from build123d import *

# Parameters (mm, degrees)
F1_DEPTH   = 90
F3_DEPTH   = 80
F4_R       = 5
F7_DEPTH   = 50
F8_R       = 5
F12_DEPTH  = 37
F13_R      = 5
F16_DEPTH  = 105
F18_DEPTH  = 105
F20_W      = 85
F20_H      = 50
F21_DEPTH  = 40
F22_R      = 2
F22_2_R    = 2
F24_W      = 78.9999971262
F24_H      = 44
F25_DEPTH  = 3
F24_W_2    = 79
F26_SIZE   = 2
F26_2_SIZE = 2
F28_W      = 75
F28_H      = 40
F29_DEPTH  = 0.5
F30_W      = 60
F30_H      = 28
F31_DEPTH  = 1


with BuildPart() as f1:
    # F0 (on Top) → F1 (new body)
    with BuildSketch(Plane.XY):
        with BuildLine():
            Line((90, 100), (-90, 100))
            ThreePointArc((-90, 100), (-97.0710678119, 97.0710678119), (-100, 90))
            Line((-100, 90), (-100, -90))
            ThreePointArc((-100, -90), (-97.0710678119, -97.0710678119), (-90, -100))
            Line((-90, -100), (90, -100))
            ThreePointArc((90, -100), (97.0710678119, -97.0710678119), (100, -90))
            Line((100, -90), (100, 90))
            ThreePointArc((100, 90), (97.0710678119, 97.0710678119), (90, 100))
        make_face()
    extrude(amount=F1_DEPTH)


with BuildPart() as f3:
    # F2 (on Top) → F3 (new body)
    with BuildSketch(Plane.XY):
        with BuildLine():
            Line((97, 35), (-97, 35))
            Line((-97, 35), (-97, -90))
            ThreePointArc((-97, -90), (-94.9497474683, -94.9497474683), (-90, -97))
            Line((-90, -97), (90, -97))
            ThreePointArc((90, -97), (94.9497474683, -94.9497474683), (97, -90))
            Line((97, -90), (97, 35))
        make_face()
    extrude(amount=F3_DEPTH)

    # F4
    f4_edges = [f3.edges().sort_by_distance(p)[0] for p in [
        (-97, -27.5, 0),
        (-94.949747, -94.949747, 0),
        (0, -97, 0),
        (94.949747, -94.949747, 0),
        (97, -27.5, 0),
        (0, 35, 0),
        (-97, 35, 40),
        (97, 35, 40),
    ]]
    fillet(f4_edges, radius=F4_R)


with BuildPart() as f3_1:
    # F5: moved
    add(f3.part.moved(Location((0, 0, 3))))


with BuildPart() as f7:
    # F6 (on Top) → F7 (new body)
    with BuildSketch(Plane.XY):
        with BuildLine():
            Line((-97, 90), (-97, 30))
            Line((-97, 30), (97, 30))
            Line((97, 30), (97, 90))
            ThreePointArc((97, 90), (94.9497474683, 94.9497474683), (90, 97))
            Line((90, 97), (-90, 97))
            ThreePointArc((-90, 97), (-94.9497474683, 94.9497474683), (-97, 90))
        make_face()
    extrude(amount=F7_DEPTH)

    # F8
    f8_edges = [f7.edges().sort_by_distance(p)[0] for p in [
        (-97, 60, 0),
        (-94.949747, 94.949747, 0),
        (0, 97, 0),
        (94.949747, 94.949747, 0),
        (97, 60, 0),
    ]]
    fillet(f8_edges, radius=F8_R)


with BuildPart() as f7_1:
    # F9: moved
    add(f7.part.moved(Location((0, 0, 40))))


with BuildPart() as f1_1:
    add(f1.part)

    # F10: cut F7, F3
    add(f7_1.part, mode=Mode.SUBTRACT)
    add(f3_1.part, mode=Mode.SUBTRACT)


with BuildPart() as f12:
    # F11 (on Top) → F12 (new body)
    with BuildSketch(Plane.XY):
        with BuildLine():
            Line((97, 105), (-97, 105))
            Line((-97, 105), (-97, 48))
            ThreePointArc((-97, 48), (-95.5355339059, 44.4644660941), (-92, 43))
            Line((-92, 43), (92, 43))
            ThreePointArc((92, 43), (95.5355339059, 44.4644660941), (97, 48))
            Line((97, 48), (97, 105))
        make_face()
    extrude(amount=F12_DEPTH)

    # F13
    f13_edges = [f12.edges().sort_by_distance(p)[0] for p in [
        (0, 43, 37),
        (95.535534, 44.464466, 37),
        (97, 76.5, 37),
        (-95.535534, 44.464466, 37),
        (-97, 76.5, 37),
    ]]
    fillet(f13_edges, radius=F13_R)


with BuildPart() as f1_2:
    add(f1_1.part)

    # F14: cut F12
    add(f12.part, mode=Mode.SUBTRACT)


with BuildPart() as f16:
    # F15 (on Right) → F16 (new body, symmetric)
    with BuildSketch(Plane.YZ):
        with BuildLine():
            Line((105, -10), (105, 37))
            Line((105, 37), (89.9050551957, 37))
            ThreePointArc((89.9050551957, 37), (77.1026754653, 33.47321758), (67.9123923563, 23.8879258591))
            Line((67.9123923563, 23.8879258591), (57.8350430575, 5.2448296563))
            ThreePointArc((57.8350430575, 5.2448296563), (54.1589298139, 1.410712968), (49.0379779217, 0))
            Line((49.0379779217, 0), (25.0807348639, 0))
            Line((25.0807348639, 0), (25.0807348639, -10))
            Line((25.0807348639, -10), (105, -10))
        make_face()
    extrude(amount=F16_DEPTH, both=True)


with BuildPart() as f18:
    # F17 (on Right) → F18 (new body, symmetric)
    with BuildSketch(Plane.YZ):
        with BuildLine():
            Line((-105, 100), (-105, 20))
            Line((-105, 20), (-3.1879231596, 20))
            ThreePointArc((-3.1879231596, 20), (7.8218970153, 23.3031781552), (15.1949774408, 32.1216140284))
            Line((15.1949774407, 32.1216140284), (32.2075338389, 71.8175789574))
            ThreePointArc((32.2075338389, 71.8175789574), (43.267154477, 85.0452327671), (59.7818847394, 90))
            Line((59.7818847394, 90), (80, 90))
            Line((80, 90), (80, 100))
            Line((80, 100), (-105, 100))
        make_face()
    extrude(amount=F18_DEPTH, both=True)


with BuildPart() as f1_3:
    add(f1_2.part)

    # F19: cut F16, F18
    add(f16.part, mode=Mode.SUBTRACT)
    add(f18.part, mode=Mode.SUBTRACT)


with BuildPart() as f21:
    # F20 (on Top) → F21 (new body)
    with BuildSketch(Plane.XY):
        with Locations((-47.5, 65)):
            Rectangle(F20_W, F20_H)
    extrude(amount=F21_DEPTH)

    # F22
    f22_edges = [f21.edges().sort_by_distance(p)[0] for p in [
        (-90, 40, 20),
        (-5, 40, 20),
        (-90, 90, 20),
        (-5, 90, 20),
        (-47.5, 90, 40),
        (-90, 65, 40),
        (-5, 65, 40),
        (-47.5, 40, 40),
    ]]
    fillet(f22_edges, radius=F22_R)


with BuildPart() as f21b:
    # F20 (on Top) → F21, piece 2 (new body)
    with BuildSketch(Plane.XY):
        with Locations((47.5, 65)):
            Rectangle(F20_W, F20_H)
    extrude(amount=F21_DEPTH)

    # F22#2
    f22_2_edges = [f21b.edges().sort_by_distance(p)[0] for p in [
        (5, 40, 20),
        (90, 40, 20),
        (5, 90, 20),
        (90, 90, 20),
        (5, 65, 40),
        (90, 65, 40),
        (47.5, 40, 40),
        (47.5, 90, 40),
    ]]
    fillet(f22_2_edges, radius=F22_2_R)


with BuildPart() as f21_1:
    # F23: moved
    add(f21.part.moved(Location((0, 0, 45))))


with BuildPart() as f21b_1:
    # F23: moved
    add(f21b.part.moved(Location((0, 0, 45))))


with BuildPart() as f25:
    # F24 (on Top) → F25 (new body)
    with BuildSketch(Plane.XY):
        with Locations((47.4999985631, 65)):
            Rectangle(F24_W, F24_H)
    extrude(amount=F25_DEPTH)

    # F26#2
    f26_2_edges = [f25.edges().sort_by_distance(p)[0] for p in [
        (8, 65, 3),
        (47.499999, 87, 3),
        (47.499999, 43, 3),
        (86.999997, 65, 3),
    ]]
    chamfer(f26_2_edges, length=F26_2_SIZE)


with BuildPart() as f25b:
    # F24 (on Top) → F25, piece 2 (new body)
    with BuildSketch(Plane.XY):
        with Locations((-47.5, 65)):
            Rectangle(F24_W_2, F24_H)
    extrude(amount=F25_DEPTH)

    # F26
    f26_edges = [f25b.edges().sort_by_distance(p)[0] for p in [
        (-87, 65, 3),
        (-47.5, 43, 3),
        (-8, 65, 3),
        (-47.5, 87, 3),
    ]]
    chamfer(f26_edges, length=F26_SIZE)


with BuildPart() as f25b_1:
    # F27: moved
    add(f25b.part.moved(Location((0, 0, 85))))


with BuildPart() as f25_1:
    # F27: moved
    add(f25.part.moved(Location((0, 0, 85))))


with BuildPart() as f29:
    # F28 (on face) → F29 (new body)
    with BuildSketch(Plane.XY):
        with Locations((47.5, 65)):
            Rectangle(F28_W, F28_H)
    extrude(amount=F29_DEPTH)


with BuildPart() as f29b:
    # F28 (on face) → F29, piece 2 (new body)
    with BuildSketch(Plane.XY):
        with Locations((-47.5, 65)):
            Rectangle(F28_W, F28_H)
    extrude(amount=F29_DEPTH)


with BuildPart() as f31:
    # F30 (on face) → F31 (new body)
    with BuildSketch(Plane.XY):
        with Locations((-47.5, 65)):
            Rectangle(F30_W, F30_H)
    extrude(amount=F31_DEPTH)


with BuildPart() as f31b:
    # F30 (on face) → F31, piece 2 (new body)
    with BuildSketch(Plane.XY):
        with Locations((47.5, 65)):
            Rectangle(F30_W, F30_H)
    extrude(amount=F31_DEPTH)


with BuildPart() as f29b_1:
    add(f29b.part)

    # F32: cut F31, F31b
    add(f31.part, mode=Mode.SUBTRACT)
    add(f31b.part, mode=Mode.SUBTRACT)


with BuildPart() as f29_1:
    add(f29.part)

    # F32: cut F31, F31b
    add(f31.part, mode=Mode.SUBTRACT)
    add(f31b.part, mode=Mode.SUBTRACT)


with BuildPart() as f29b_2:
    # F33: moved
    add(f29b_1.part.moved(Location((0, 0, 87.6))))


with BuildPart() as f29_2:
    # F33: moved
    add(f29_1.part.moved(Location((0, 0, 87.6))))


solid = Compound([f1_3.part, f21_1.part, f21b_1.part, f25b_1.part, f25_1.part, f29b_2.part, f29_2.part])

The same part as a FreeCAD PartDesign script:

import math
import FreeCAD as App
import Part
import Sketcher
from FreeCAD import Vector


def edges_at(feature, points):
    """Names of the edges that pass closest to the given points."""
    edges = feature.Shape.Edges
    near = lambda p: min(range(len(edges)), key=lambda i: edges[i].distToShape(Part.Vertex(*p))[0])
    return sorted({f"Edge{near(p) + 1}" for p in points})


def add_polygon(sketch, points):
    """Adds a closed chain of lines whose ends are joined by coincident constraints."""
    first, n = sketch.GeometryCount, len(points)
    for a, b in zip(points, points[1:] + points[:1]):
        sketch.addGeometry(Part.LineSegment(App.Vector(*a, 0), App.Vector(*b, 0)), False)
    for i in range(n):
        sketch.addConstraint(Sketcher.Constraint("Coincident", first + i, 2, first + (i + 1) % n, 1))

doc = App.newDocument("Part")
params = doc.addObject("Spreadsheet::Sheet", "Params")
for row, (alias, value) in enumerate([
    ("sketch1_radius", "10 mm"),
    ("sketch1_width", "180 mm"),
    ("pad1_length", "90 mm"),
    ("sketch2_radius", "7 mm"),
    ("sketch2_width", "194 mm"),
    ("sketch2_height", "125 mm"),
    ("pad2_length", "80 mm"),
    ("fillet_radius", "5 mm"),
    ("sketch3_radius", "7 mm"),
    ("sketch3_width", "194 mm"),
    ("sketch3_height", "60 mm"),
    ("pad3_length", "50 mm"),
    ("fillet2_radius", "5 mm"),
    ("sketch4_radius", "5 mm"),
    ("sketch4_width", "194 mm"),
    ("sketch4_height", "57 mm"),
    ("pad4_length", "37 mm"),
    ("fillet3_radius", "5 mm"),
    ("sketch5_radius", "25 mm"),
    ("sketch5_radius2", "10 mm"),
    ("sketch5_height", "47 mm"),
    ("sketch5_height2", "10 mm"),
    ("pad5_length", "210 mm"),
    ("sketch6_radius", "20 mm"),
    ("sketch6_radius2", "30 mm"),
    ("sketch6_width", "185 mm"),
    ("sketch6_height", "80 mm"),
    ("sketch6_height2", "10 mm"),
    ("pad6_length", "210 mm"),
    ("sketch7_width", "85 mm"),
    ("sketch7_height", "50 mm"),
    ("pad7_length", "40 mm"),
    ("fillet4_radius", "2 mm"),
    ("sketch8_width", "85 mm"),
    ("sketch8_height", "50 mm"),
    ("pad8_length", "40 mm"),
    ("fillet5_radius", "2 mm"),
    ("sketch9_height", "44 mm"),
    ("pad9_length", "3 mm"),
    ("chamfer_size", "2 mm"),
    ("sketch10_width", "79 mm"),
    ("sketch10_height", "44 mm"),
    ("pad10_length", "3 mm"),
    ("chamfer2_size", "2 mm"),
    ("sketch11_width", "75 mm"),
    ("sketch11_height", "40 mm"),
    ("pad11_length", "0.5 mm"),
    ("sketch12_width", "75 mm"),
    ("sketch12_height", "40 mm"),
    ("pad12_length", "0.5 mm"),
    ("sketch13_width", "60 mm"),
    ("sketch13_height", "28 mm"),
    ("pad13_length", "1 mm"),
    ("sketch14_width", "60 mm"),
    ("sketch14_height", "28 mm"),
    ("pad14_length", "1 mm"),
], start=1):
    params.set(f"A{row}", alias)
    params.set(f"B{row}", "=" + value)
    params.setAlias(f"B{row}", alias)

body = doc.addObject("PartDesign::Body", "Body")

# Sketch on XY plane
sketch1 = body.newObject("Sketcher::SketchObject", "Sketch")
sketch1.AttachmentSupport = (doc.getObject("XY_Plane"), [""])
sketch1.MapMode = "FlatFace"
sketch1.addGeometry([
    Part.LineSegment(Vector(90, 100, 0), Vector(-90, 100, 0)),  # 0
    Part.ArcOfCircle(Part.Circle(Vector(-90, 90, 0), Vector(0, 0, 1), 10), math.radians(90), math.radians(180)),  # 1
    Part.LineSegment(Vector(-100, 90, 0), Vector(-100, -90, 0)),  # 2
    Part.ArcOfCircle(Part.Circle(Vector(-90, -90, 0), Vector(0, 0, 1), 10), math.radians(180), math.radians(270)),  # 3
    Part.LineSegment(Vector(-90, -100, 0), Vector(90, -100, 0)),  # 4
    Part.ArcOfCircle(Part.Circle(Vector(90, -90, 0), Vector(0, 0, 1), 10), math.radians(-90), math.radians(0)),  # 5
    Part.LineSegment(Vector(100, -90, 0), Vector(100, 90, 0)),  # 6
    Part.ArcOfCircle(Part.Circle(Vector(90, 90, 0), Vector(0, 0, 1), 10), math.radians(0), math.radians(90)),  # 7
], False)
sketch1.addConstraint([
    Sketcher.Constraint("Tangent", 0, 2, 1, 1),
    Sketcher.Constraint("Tangent", 1, 2, 2, 1),
    Sketcher.Constraint("Tangent", 2, 2, 3, 1),
    Sketcher.Constraint("Tangent", 3, 2, 4, 1),
    Sketcher.Constraint("Tangent", 4, 2, 5, 1),
    Sketcher.Constraint("Tangent", 5, 2, 6, 1),
    Sketcher.Constraint("Tangent", 6, 2, 7, 1),
    Sketcher.Constraint("Tangent", 7, 2, 0, 1),
    Sketcher.Constraint("Horizontal", 0),
    Sketcher.Constraint("Vertical", 2),
    Sketcher.Constraint("Horizontal", 4),
    Sketcher.Constraint("Vertical", 6),
    Sketcher.Constraint("Equal", 1, 3),
    Sketcher.Constraint("Equal", 3, 5),
    Sketcher.Constraint("Equal", 5, 7),
    Sketcher.Constraint("Symmetric", 1, 3, 5, 3, -1, 1),
    Sketcher.Constraint("Equal", 4, 2),
    Sketcher.Constraint("Radius", 1, 10.0),
    Sketcher.Constraint("DistanceX", 0, 2, 0, 1, 180.0),
])
sketch1.setExpression("Constraints[17]", "Params.sketch1_radius")
sketch1.setExpression("Constraints[18]", "Params.sketch1_width")
pad1 = body.newObject("PartDesign::Pad", "Pad")
pad1.Profile = sketch1
pad1.setExpression("Length", "Params.pad1_length")
body2 = doc.addObject("PartDesign::Body", "Body001")

# Sketch on XY plane
sketch2 = body2.newObject("Sketcher::SketchObject", "Sketch001")
sketch2.AttachmentSupport = (doc.getObject("XY_Plane001"), [""])
sketch2.MapMode = "FlatFace"
sketch2.addGeometry([
    Part.LineSegment(Vector(97, 35, 0), Vector(-97, 35, 0)),  # 0
    Part.LineSegment(Vector(-97, 35, 0), Vector(-97, -90, 0)),  # 1
    Part.ArcOfCircle(Part.Circle(Vector(-90, -90, 0), Vector(0, 0, 1), 7), math.radians(180), math.radians(270)),  # 2
    Part.LineSegment(Vector(-90, -97, 0), Vector(90, -97, 0)),  # 3
    Part.ArcOfCircle(Part.Circle(Vector(90, -90, 0), Vector(0, 0, 1), 7), math.radians(-90), math.radians(0)),  # 4
    Part.LineSegment(Vector(97, -90, 0), Vector(97, 35, 0)),  # 5
], False)
sketch2.addConstraint([
    Sketcher.Constraint("Coincident", 0, 2, 1, 1),
    Sketcher.Constraint("Tangent", 1, 2, 2, 1),
    Sketcher.Constraint("Tangent", 2, 2, 3, 1),
    Sketcher.Constraint("Tangent", 3, 2, 4, 1),
    Sketcher.Constraint("Tangent", 4, 2, 5, 1),
    Sketcher.Constraint("Coincident", 5, 2, 0, 1),
    Sketcher.Constraint("Horizontal", 0),
    Sketcher.Constraint("Vertical", 1),
    Sketcher.Constraint("Horizontal", 3),
    Sketcher.Constraint("Vertical", 5),
    Sketcher.Constraint("Equal", 2, 4),
    Sketcher.Constraint("Radius", 2, 7.0),
    Sketcher.Constraint("DistanceX", 0, 2, 0, 1, 194.0),
    Sketcher.Constraint("DistanceY", 1, 2, 1, 1, 125.0),
    Sketcher.Constraint("DistanceX", 2, 3, -1, 1, 90.0),
    Sketcher.Constraint("DistanceY", 2, 3, -1, 1, 90.0),
])
sketch2.setExpression("Constraints[11]", "Params.sketch2_radius")
sketch2.setExpression("Constraints[12]", "Params.sketch2_width")
sketch2.setExpression("Constraints[13]", "Params.sketch2_height")
pad2 = body2.newObject("PartDesign::Pad", "Pad001")
pad2.Profile = sketch2
pad2.setExpression("Length", "Params.pad2_length")
doc.recompute()

fillet = body2.newObject("PartDesign::Fillet", "Fillet")
fillet.Base = (pad2, edges_at(pad2, [
    (-97, -27.5, 0),
    (-94.95, -94.95, 0),
    (0, -97, 0),
    (94.95, -94.95, 0),
    (97, -27.5, 0),
    (0, 35, 0),
    (-97, 35, 40),
    (97, 35, 40),
]))
fillet.setExpression("Radius", "Params.fillet_radius")
body3 = doc.addObject("PartDesign::Body", "Body002")
doc.recompute()

body2.Placement = App.Placement(Vector(0, 0, 3), App.Rotation(Vector(0, 0, 1), 0))
boolean = body3.newObject("PartDesign::Boolean", "Boolean")
boolean.Type = "Fuse"
boolean.addObjects([body2])
body4 = doc.addObject("PartDesign::Body", "Body003")

# Sketch on XY plane
sketch3 = body4.newObject("Sketcher::SketchObject", "Sketch002")
sketch3.AttachmentSupport = (doc.getObject("XY_Plane003"), [""])
sketch3.MapMode = "FlatFace"
sketch3.addGeometry([
    Part.LineSegment(Vector(-97, 90, 0), Vector(-97, 30, 0)),  # 0
    Part.LineSegment(Vector(-97, 30, 0), Vector(97, 30, 0)),  # 1
    Part.LineSegment(Vector(97, 30, 0), Vector(97, 90, 0)),  # 2
    Part.ArcOfCircle(Part.Circle(Vector(90, 90, 0), Vector(0, 0, 1), 7), math.radians(0), math.radians(90)),  # 3
    Part.LineSegment(Vector(90, 97, 0), Vector(-90, 97, 0)),  # 4
    Part.ArcOfCircle(Part.Circle(Vector(-90, 90, 0), Vector(0, 0, 1), 7), math.radians(90), math.radians(180)),  # 5
], False)
sketch3.addConstraint([
    Sketcher.Constraint("Coincident", 0, 2, 1, 1),
    Sketcher.Constraint("Coincident", 1, 2, 2, 1),
    Sketcher.Constraint("Tangent", 2, 2, 3, 1),
    Sketcher.Constraint("Tangent", 3, 2, 4, 1),
    Sketcher.Constraint("Tangent", 4, 2, 5, 1),
    Sketcher.Constraint("Tangent", 5, 2, 0, 1),
    Sketcher.Constraint("Vertical", 0),
    Sketcher.Constraint("Horizontal", 1),
    Sketcher.Constraint("Vertical", 2),
    Sketcher.Constraint("Horizontal", 4),
    Sketcher.Constraint("Equal", 3, 5),
    Sketcher.Constraint("Radius", 3, 7.0),
    Sketcher.Constraint("DistanceX", 1, 1, 1, 2, 194.0),
    Sketcher.Constraint("DistanceY", 0, 2, 0, 1, 60.0),
    Sketcher.Constraint("DistanceX", -1, 1, 3, 3, 90.0),
    Sketcher.Constraint("DistanceY", -1, 1, 3, 3, 90.0),
])
sketch3.setExpression("Constraints[11]", "Params.sketch3_radius")
sketch3.setExpression("Constraints[12]", "Params.sketch3_width")
sketch3.setExpression("Constraints[13]", "Params.sketch3_height")
pad3 = body4.newObject("PartDesign::Pad", "Pad002")
pad3.Profile = sketch3
pad3.setExpression("Length", "Params.pad3_length")
doc.recompute()

fillet2 = body4.newObject("PartDesign::Fillet", "Fillet001")
fillet2.Base = (pad3, edges_at(pad3, [
    (-97, 60, 0),
    (-94.95, 94.95, 0),
    (0, 97, 0),
    (94.95, 94.95, 0),
    (97, 60, 0),
]))
fillet2.setExpression("Radius", "Params.fillet2_radius")
body5 = doc.addObject("PartDesign::Body", "Body004")
doc.recompute()

body4.Placement = App.Placement(Vector(0, 0, 40), App.Rotation(Vector(0, 0, 1), 0))
boolean2 = body5.newObject("PartDesign::Boolean", "Boolean001")
boolean2.Type = "Fuse"
boolean2.addObjects([body4])
doc.recompute()

boolean3 = body.newObject("PartDesign::Boolean", "Boolean002")
boolean3.Type = "Cut"
boolean3.addObjects([body5])
doc.recompute()

boolean4 = body.newObject("PartDesign::Boolean", "Boolean003")
boolean4.Type = "Cut"
boolean4.addObjects([body3])
body6 = doc.addObject("PartDesign::Body", "Body005")

# Sketch on XY plane
sketch4 = body6.newObject("Sketcher::SketchObject", "Sketch003")
sketch4.AttachmentSupport = (doc.getObject("XY_Plane005"), [""])
sketch4.MapMode = "FlatFace"
sketch4.addGeometry([
    Part.LineSegment(Vector(97, 105, 0), Vector(-97, 105, 0)),  # 0
    Part.LineSegment(Vector(-97, 105, 0), Vector(-97, 48, 0)),  # 1
    Part.ArcOfCircle(Part.Circle(Vector(-92, 48, 0), Vector(0, 0, 1), 5), math.radians(180), math.radians(270)),  # 2
    Part.LineSegment(Vector(-92, 43, 0), Vector(92, 43, 0)),  # 3
    Part.ArcOfCircle(Part.Circle(Vector(92, 48, 0), Vector(0, 0, 1), 5), math.radians(-90), math.radians(0)),  # 4
    Part.LineSegment(Vector(97, 48, 0), Vector(97, 105, 0)),  # 5
], False)
sketch4.addConstraint([
    Sketcher.Constraint("Coincident", 0, 2, 1, 1),
    Sketcher.Constraint("Tangent", 1, 2, 2, 1),
    Sketcher.Constraint("Tangent", 2, 2, 3, 1),
    Sketcher.Constraint("Tangent", 3, 2, 4, 1),
    Sketcher.Constraint("Tangent", 4, 2, 5, 1),
    Sketcher.Constraint("Coincident", 5, 2, 0, 1),
    Sketcher.Constraint("Horizontal", 0),
    Sketcher.Constraint("Vertical", 1),
    Sketcher.Constraint("Horizontal", 3),
    Sketcher.Constraint("Vertical", 5),
    Sketcher.Constraint("Equal", 2, 4),
    Sketcher.Constraint("Radius", 2, 5.0),
    Sketcher.Constraint("DistanceX", 0, 2, 0, 1, 194.0),
    Sketcher.Constraint("DistanceY", 1, 2, 1, 1, 57.0),
    Sketcher.Constraint("DistanceX", 2, 3, -1, 1, 92.0),
    Sketcher.Constraint("DistanceY", -1, 1, 2, 3, 48.0),
])
sketch4.setExpression("Constraints[11]", "Params.sketch4_radius")
sketch4.setExpression("Constraints[12]", "Params.sketch4_width")
sketch4.setExpression("Constraints[13]", "Params.sketch4_height")
pad4 = body6.newObject("PartDesign::Pad", "Pad003")
pad4.Profile = sketch4
pad4.setExpression("Length", "Params.pad4_length")
doc.recompute()

fillet3 = body6.newObject("PartDesign::Fillet", "Fillet002")
fillet3.Base = (pad4, edges_at(pad4, [
    (0, 43, 37),
    (95.536, 44.464, 37),
    (97, 76.5, 37),
    (-95.536, 44.464, 37),
    (-97, 76.5, 37),
]))
fillet3.setExpression("Radius", "Params.fillet3_radius")
doc.recompute()

boolean5 = body.newObject("PartDesign::Boolean", "Boolean004")
boolean5.Type = "Cut"
boolean5.addObjects([body6])
body7 = doc.addObject("PartDesign::Body", "Body006")

# Sketch on YZ plane
sketch5 = body7.newObject("Sketcher::SketchObject", "Sketch004")
sketch5.AttachmentSupport = (doc.getObject("YZ_Plane006"), [""])
sketch5.MapMode = "FlatFace"
sketch5.addGeometry([
    Part.LineSegment(Vector(105, -10, 0), Vector(105, 37, 0)),  # 0
    Part.LineSegment(Vector(105, 37, 0), Vector(90, 37, 0)),  # 1
    Part.ArcOfCircle(Part.Circle(Vector(90, 12, 0), Vector(0, 0, 1), 25), math.radians(90), math.radians(152)),  # 2
    Part.LineSegment(Vector(68, 24, 0), Vector(58, 5, 0)),  # 3
    Part.ArcOfCircle(Part.Circle(Vector(49, 10, 0), Vector(0, 0, 1), 10), math.radians(-90), math.radians(-28)),  # 4
    Part.LineSegment(Vector(49, 0, 0), Vector(25, 0, 0)),  # 5
    Part.LineSegment(Vector(25, 0, 0), Vector(25, -10, 0)),  # 6
    Part.LineSegment(Vector(25, -10, 0), Vector(105, -10, 0)),  # 7
], False)
sketch5.addConstraint([
    Sketcher.Constraint("Coincident", 0, 2, 1, 1),
    Sketcher.Constraint("Tangent", 1, 2, 2, 1),
    Sketcher.Constraint("Tangent", 2, 2, 3, 1),
    Sketcher.Constraint("Tangent", 3, 2, 4, 2),
    Sketcher.Constraint("Tangent", 4, 1, 5, 1),
    Sketcher.Constraint("Coincident", 5, 2, 6, 1),
    Sketcher.Constraint("Coincident", 6, 2, 7, 1),
    Sketcher.Constraint("Coincident", 7, 2, 0, 1),
    Sketcher.Constraint("Vertical", 0),
    Sketcher.Constraint("Horizontal", 1),
    Sketcher.Constraint("Horizontal", 5),
    Sketcher.Constraint("Vertical", 6),
    Sketcher.Constraint("Horizontal", 7),
    Sketcher.Constraint("PointOnObject", 4, 1, -1),
    Sketcher.Constraint("Radius", 2, 25.0),
    Sketcher.Constraint("Radius", 4, 10.0),
    Sketcher.Constraint("DistanceY", 0, 1, 0, 2, 47.0),
    Sketcher.Constraint("DistanceY", 6, 2, 6, 1, 10.0),
    Sketcher.Constraint("DistanceX", -1, 1, 0, 2, 105.0),
    Sketcher.Constraint("DistanceX", 1, 2, 1, 1, 15.094945),
    Sketcher.Constraint("DistanceX", 5, 2, 5, 1, 23.957243),
    Sketcher.Constraint("DistanceX", 7, 1, 7, 2, 79.919265),
])
sketch5.setExpression("Constraints[14]", "Params.sketch5_radius")
sketch5.setExpression("Constraints[15]", "Params.sketch5_radius2")
sketch5.setExpression("Constraints[16]", "Params.sketch5_height")
sketch5.setExpression("Constraints[17]", "Params.sketch5_height2")
pad5 = body7.newObject("PartDesign::Pad", "Pad004")
pad5.Profile = sketch5
pad5.setExpression("Length", "Params.pad5_length")
pad5.Midplane = True
body8 = doc.addObject("PartDesign::Body", "Body007")

# Sketch on YZ plane
sketch6 = body8.newObject("Sketcher::SketchObject", "Sketch005")
sketch6.AttachmentSupport = (doc.getObject("YZ_Plane007"), [""])
sketch6.MapMode = "FlatFace"
sketch6.addGeometry([
    Part.LineSegment(Vector(-105, 100, 0), Vector(-105, 20, 0)),  # 0
    Part.LineSegment(Vector(-105, 20, 0), Vector(-3, 20, 0)),  # 1
    Part.ArcOfCircle(Part.Circle(Vector(-3, 40, 0), Vector(0, 0, 1), 20), math.radians(-90), math.radians(-23)),  # 2
    Part.LineSegment(Vector(15, 32, 0), Vector(32, 72, 0)),  # 3
    Part.ArcOfCircle(Part.Circle(Vector(60, 60, 0), Vector(0, 0, 1), 30), math.radians(90), math.radians(157)),  # 4
    Part.LineSegment(Vector(60, 90, 0), Vector(80, 90, 0)),  # 5
    Part.LineSegment(Vector(80, 90, 0), Vector(80, 100, 0)),  # 6
    Part.LineSegment(Vector(80, 100, 0), Vector(-105, 100, 0)),  # 7
], False)
sketch6.addConstraint([
    Sketcher.Constraint("Coincident", 0, 2, 1, 1),
    Sketcher.Constraint("Tangent", 1, 2, 2, 1),
    Sketcher.Constraint("Tangent", 2, 2, 3, 1),
    Sketcher.Constraint("Tangent", 3, 2, 4, 2),
    Sketcher.Constraint("Tangent", 4, 1, 5, 1),
    Sketcher.Constraint("Coincident", 5, 2, 6, 1),
    Sketcher.Constraint("Coincident", 6, 2, 7, 1),
    Sketcher.Constraint("Coincident", 7, 2, 0, 1),
    Sketcher.Constraint("Vertical", 0),
    Sketcher.Constraint("Horizontal", 1),
    Sketcher.Constraint("Horizontal", 5),
    Sketcher.Constraint("Vertical", 6),
    Sketcher.Constraint("Horizontal", 7),
    Sketcher.Constraint("Radius", 2, 20.0),
    Sketcher.Constraint("Radius", 4, 30.0),
    Sketcher.Constraint("DistanceX", 7, 2, 7, 1, 185.0),
    Sketcher.Constraint("DistanceY", 0, 2, 0, 1, 80.0),
    Sketcher.Constraint("DistanceY", 6, 1, 6, 2, 10.0),
    Sketcher.Constraint("DistanceY", -1, 1, 2, 3, 40.0),
    Sketcher.Constraint("DistanceX", 0, 2, -1, 1, 105.0),
    Sketcher.Constraint("DistanceX", 2, 3, 2, 2, 18.382901),
    Sketcher.Constraint("DistanceX", 1, 1, 1, 2, 101.812077),
])
sketch6.setExpression("Constraints[13]", "Params.sketch6_radius")
sketch6.setExpression("Constraints[14]", "Params.sketch6_radius2")
sketch6.setExpression("Constraints[15]", "Params.sketch6_width")
sketch6.setExpression("Constraints[16]", "Params.sketch6_height")
sketch6.setExpression("Constraints[17]", "Params.sketch6_height2")
pad6 = body8.newObject("PartDesign::Pad", "Pad005")
pad6.Profile = sketch6
pad6.setExpression("Length", "Params.pad6_length")
pad6.Midplane = True
doc.recompute()

boolean6 = body.newObject("PartDesign::Boolean", "Boolean005")
boolean6.Type = "Cut"
boolean6.addObjects([body7])
doc.recompute()

boolean7 = body.newObject("PartDesign::Boolean", "Boolean006")
boolean7.Type = "Cut"
boolean7.addObjects([body8])
body9 = doc.addObject("PartDesign::Body", "Body008")

# Sketch on XY plane
sketch7 = body9.newObject("Sketcher::SketchObject", "Sketch006")
sketch7.AttachmentSupport = (doc.getObject("XY_Plane008"), [""])
sketch7.MapMode = "FlatFace"
add_polygon(sketch7, [(-90, 90), (-90, 40), (-5, 40), (-5, 90)])  # lines 0-3
sketch7.addConstraint([
    Sketcher.Constraint("Vertical", 0),
    Sketcher.Constraint("Horizontal", 1),
    Sketcher.Constraint("Vertical", 2),
    Sketcher.Constraint("Horizontal", 3),
    Sketcher.Constraint("DistanceX", 1, 1, 1, 2, 85.0),
    Sketcher.Constraint("DistanceY", 0, 2, 0, 1, 50.0),
    Sketcher.Constraint("DistanceX", 0, 2, -1, 1, 90.0),
    Sketcher.Constraint("DistanceY", -1, 1, 0, 2, 40.0),
])
sketch7.setExpression("Constraints[8]", "Params.sketch7_width")
sketch7.setExpression("Constraints[9]", "Params.sketch7_height")
pad7 = body9.newObject("PartDesign::Pad", "Pad006")
pad7.Profile = sketch7
pad7.setExpression("Length", "Params.pad7_length")
doc.recompute()

fillet4 = body9.newObject("PartDesign::Fillet", "Fillet003")
fillet4.Base = (pad7, edges_at(pad7, [
    (-90, 40, 20),
    (-5, 40, 20),
    (-90, 90, 20),
    (-5, 90, 20),
    (-47.5, 90, 40),
    (-90, 65, 40),
    (-5, 65, 40),
    (-47.5, 40, 40),
]))
fillet4.setExpression("Radius", "Params.fillet4_radius")
body10 = doc.addObject("PartDesign::Body", "Body009")

# Sketch on XY plane
sketch8 = body10.newObject("Sketcher::SketchObject", "Sketch007")
sketch8.AttachmentSupport = (doc.getObject("XY_Plane009"), [""])
sketch8.MapMode = "FlatFace"
add_polygon(sketch8, [(5, 90), (5, 40), (90, 40), (90, 90)])  # lines 0-3
sketch8.addConstraint([
    Sketcher.Constraint("Vertical", 0),
    Sketcher.Constraint("Horizontal", 1),
    Sketcher.Constraint("Vertical", 2),
    Sketcher.Constraint("Horizontal", 3),
    Sketcher.Constraint("DistanceX", 1, 1, 1, 2, 85.0),
    Sketcher.Constraint("DistanceY", 0, 2, 0, 1, 50.0),
    Sketcher.Constraint("DistanceX", -1, 1, 0, 2, 5.0),
    Sketcher.Constraint("DistanceY", -1, 1, 0, 2, 40.0),
])
sketch8.setExpression("Constraints[8]", "Params.sketch8_width")
sketch8.setExpression("Constraints[9]", "Params.sketch8_height")
pad8 = body10.newObject("PartDesign::Pad", "Pad007")
pad8.Profile = sketch8
pad8.setExpression("Length", "Params.pad8_length")
doc.recompute()

fillet5 = body10.newObject("PartDesign::Fillet", "Fillet004")
fillet5.Base = (pad8, edges_at(pad8, [
    (5, 40, 20),
    (90, 40, 20),
    (5, 90, 20),
    (90, 90, 20),
    (5, 65, 40),
    (90, 65, 40),
    (47.5, 40, 40),
    (47.5, 90, 40),
]))
fillet5.setExpression("Radius", "Params.fillet5_radius")
body11 = doc.addObject("PartDesign::Body", "Body010")
doc.recompute()

body9.Placement = App.Placement(Vector(0, 0, 45), App.Rotation(Vector(0, 0, 1), 0))
boolean8 = body11.newObject("PartDesign::Boolean", "Boolean007")
boolean8.Type = "Fuse"
boolean8.addObjects([body9])
body12 = doc.addObject("PartDesign::Body", "Body011")
doc.recompute()

body10.Placement = App.Placement(Vector(0, 0, 45), App.Rotation(Vector(0, 0, 1), 0))
boolean9 = body12.newObject("PartDesign::Boolean", "Boolean008")
boolean9.Type = "Fuse"
boolean9.addObjects([body10])
body13 = doc.addObject("PartDesign::Body", "Body012")

# Sketch on XY plane
sketch9 = body13.newObject("Sketcher::SketchObject", "Sketch008")
sketch9.AttachmentSupport = (doc.getObject("XY_Plane012"), [""])
sketch9.MapMode = "FlatFace"
add_polygon(sketch9, [(8, 87), (8, 43), (87, 43), (87, 87)])  # lines 0-3
sketch9.addConstraint([
    Sketcher.Constraint("Vertical", 0),
    Sketcher.Constraint("Horizontal", 1),
    Sketcher.Constraint("Vertical", 2),
    Sketcher.Constraint("Horizontal", 3),
    Sketcher.Constraint("DistanceY", 0, 2, 0, 1, 44.0),
    Sketcher.Constraint("DistanceX", -1, 1, 0, 2, 8.0),
    Sketcher.Constraint("DistanceY", -1, 1, 0, 2, 43.0),
    Sketcher.Constraint("DistanceX", 1, 1, 1, 2, 78.999997),
])
sketch9.setExpression("Constraints[8]", "Params.sketch9_height")
pad9 = body13.newObject("PartDesign::Pad", "Pad008")
pad9.Profile = sketch9
pad9.setExpression("Length", "Params.pad9_length")
doc.recompute()

chamfer = body13.newObject("PartDesign::Chamfer", "Chamfer")
chamfer.Base = (pad9, edges_at(pad9, [
    (8, 65, 3),
    (47.5, 87, 3),
    (47.5, 43, 3),
    (87, 65, 3),
]))
chamfer.setExpression("Size", "Params.chamfer_size")
body14 = doc.addObject("PartDesign::Body", "Body013")

# Sketch on XY plane
sketch10 = body14.newObject("Sketcher::SketchObject", "Sketch009")
sketch10.AttachmentSupport = (doc.getObject("XY_Plane013"), [""])
sketch10.MapMode = "FlatFace"
add_polygon(sketch10, [(-87, 87), (-87, 43), (-8, 43), (-8, 87)])  # lines 0-3
sketch10.addConstraint([
    Sketcher.Constraint("Vertical", 0),
    Sketcher.Constraint("Horizontal", 1),
    Sketcher.Constraint("Vertical", 2),
    Sketcher.Constraint("Horizontal", 3),
    Sketcher.Constraint("DistanceX", 1, 1, 1, 2, 79.0),
    Sketcher.Constraint("DistanceY", 0, 2, 0, 1, 44.0),
    Sketcher.Constraint("DistanceX", 0, 2, -1, 1, 87.0),
    Sketcher.Constraint("DistanceY", -1, 1, 0, 2, 43.0),
])
sketch10.setExpression("Constraints[8]", "Params.sketch10_width")
sketch10.setExpression("Constraints[9]", "Params.sketch10_height")
pad10 = body14.newObject("PartDesign::Pad", "Pad009")
pad10.Profile = sketch10
pad10.setExpression("Length", "Params.pad10_length")
doc.recompute()

chamfer2 = body14.newObject("PartDesign::Chamfer", "Chamfer001")
chamfer2.Base = (pad10, edges_at(pad10, [
    (-87, 65, 3),
    (-47.5, 43, 3),
    (-8, 65, 3),
    (-47.5, 87, 3),
]))
chamfer2.setExpression("Size", "Params.chamfer2_size")
body15 = doc.addObject("PartDesign::Body", "Body014")
doc.recompute()

body14.Placement = App.Placement(Vector(0, 0, 85), App.Rotation(Vector(0, 0, 1), 0))
boolean10 = body15.newObject("PartDesign::Boolean", "Boolean009")
boolean10.Type = "Fuse"
boolean10.addObjects([body14])
body16 = doc.addObject("PartDesign::Body", "Body015")
doc.recompute()

body13.Placement = App.Placement(Vector(0, 0, 85), App.Rotation(Vector(0, 0, 1), 0))
boolean11 = body16.newObject("PartDesign::Boolean", "Boolean010")
boolean11.Type = "Fuse"
boolean11.addObjects([body13])
body17 = doc.addObject("PartDesign::Body", "Body016")

# Sketch on XY plane
sketch11 = body17.newObject("Sketcher::SketchObject", "Sketch010")
sketch11.AttachmentSupport = (doc.getObject("XY_Plane016"), [""])
sketch11.MapMode = "FlatFace"
add_polygon(sketch11, [(10, 85), (10, 45), (85, 45), (85, 85)])  # lines 0-3
sketch11.addConstraint([
    Sketcher.Constraint("Vertical", 0),
    Sketcher.Constraint("Horizontal", 1),
    Sketcher.Constraint("Vertical", 2),
    Sketcher.Constraint("Horizontal", 3),
    Sketcher.Constraint("DistanceX", 1, 1, 1, 2, 75.0),
    Sketcher.Constraint("DistanceY", 0, 2, 0, 1, 40.0),
    Sketcher.Constraint("DistanceX", -1, 1, 0, 2, 10.0),
    Sketcher.Constraint("DistanceY", -1, 1, 0, 2, 45.0),
])
sketch11.setExpression("Constraints[8]", "Params.sketch11_width")
sketch11.setExpression("Constraints[9]", "Params.sketch11_height")
pad11 = body17.newObject("PartDesign::Pad", "Pad010")
pad11.Profile = sketch11
pad11.setExpression("Length", "Params.pad11_length")
body18 = doc.addObject("PartDesign::Body", "Body017")

# Sketch on XY plane
sketch12 = body18.newObject("Sketcher::SketchObject", "Sketch011")
sketch12.AttachmentSupport = (doc.getObject("XY_Plane017"), [""])
sketch12.MapMode = "FlatFace"
add_polygon(sketch12, [(-85, 85), (-85, 45), (-10, 45), (-10, 85)])  # lines 0-3
sketch12.addConstraint([
    Sketcher.Constraint("Vertical", 0),
    Sketcher.Constraint("Horizontal", 1),
    Sketcher.Constraint("Vertical", 2),
    Sketcher.Constraint("Horizontal", 3),
    Sketcher.Constraint("DistanceX", 1, 1, 1, 2, 75.0),
    Sketcher.Constraint("DistanceY", 0, 2, 0, 1, 40.0),
    Sketcher.Constraint("DistanceX", 0, 2, -1, 1, 85.0),
    Sketcher.Constraint("DistanceY", -1, 1, 0, 2, 45.0),
])
sketch12.setExpression("Constraints[8]", "Params.sketch12_width")
sketch12.setExpression("Constraints[9]", "Params.sketch12_height")
pad12 = body18.newObject("PartDesign::Pad", "Pad011")
pad12.Profile = sketch12
pad12.setExpression("Length", "Params.pad12_length")
body19 = doc.addObject("PartDesign::Body", "Body018")

# Sketch on XY plane
sketch13 = body19.newObject("Sketcher::SketchObject", "Sketch012")
sketch13.AttachmentSupport = (doc.getObject("XY_Plane018"), [""])
sketch13.MapMode = "FlatFace"
add_polygon(sketch13, [(-78, 79), (-78, 51), (-18, 51), (-18, 79)])  # lines 0-3
sketch13.addConstraint([
    Sketcher.Constraint("Vertical", 0),
    Sketcher.Constraint("Horizontal", 1),
    Sketcher.Constraint("Vertical", 2),
    Sketcher.Constraint("Horizontal", 3),
    Sketcher.Constraint("DistanceX", 1, 1, 1, 2, 60.0),
    Sketcher.Constraint("DistanceY", 0, 2, 0, 1, 28.0),
    Sketcher.Constraint("DistanceY", -1, 1, 0, 2, 51.0),
    Sketcher.Constraint("DistanceX", 0, 2, -1, 1, 77.5),
])
sketch13.setExpression("Constraints[8]", "Params.sketch13_width")
sketch13.setExpression("Constraints[9]", "Params.sketch13_height")
pad13 = body19.newObject("PartDesign::Pad", "Pad012")
pad13.Profile = sketch13
pad13.setExpression("Length", "Params.pad13_length")
body20 = doc.addObject("PartDesign::Body", "Body019")

# Sketch on XY plane
sketch14 = body20.newObject("Sketcher::SketchObject", "Sketch013")
sketch14.AttachmentSupport = (doc.getObject("XY_Plane019"), [""])
sketch14.MapMode = "FlatFace"
add_polygon(sketch14, [(18, 79), (18, 51), (78, 51), (78, 79)])  # lines 0-3
sketch14.addConstraint([
    Sketcher.Constraint("Vertical", 0),
    Sketcher.Constraint("Horizontal", 1),
    Sketcher.Constraint("Vertical", 2),
    Sketcher.Constraint("Horizontal", 3),
    Sketcher.Constraint("DistanceX", 1, 1, 1, 2, 60.0),
    Sketcher.Constraint("DistanceY", 0, 2, 0, 1, 28.0),
    Sketcher.Constraint("DistanceY", -1, 1, 0, 2, 51.0),
    Sketcher.Constraint("DistanceX", -1, 1, 0, 2, 17.5),
])
sketch14.setExpression("Constraints[8]", "Params.sketch14_width")
sketch14.setExpression("Constraints[9]", "Params.sketch14_height")
pad14 = body20.newObject("PartDesign::Pad", "Pad013")
pad14.Profile = sketch14
pad14.setExpression("Length", "Params.pad14_length")
doc.recompute()

body21 = doc.addObject("PartDesign::Body", "Body020")
body21.BaseFeature = body19
boolean12 = body18.newObject("PartDesign::Boolean", "Boolean011")
boolean12.Type = "Cut"
boolean12.addObjects([body21])
doc.recompute()

body22 = doc.addObject("PartDesign::Body", "Body021")
body22.BaseFeature = body20
boolean13 = body18.newObject("PartDesign::Boolean", "Boolean012")
boolean13.Type = "Cut"
boolean13.addObjects([body22])
doc.recompute()

boolean14 = body17.newObject("PartDesign::Boolean", "Boolean013")
boolean14.Type = "Cut"
boolean14.addObjects([body19])
doc.recompute()

boolean15 = body17.newObject("PartDesign::Boolean", "Boolean014")
boolean15.Type = "Cut"
boolean15.addObjects([body20])
body23 = doc.addObject("PartDesign::Body", "Body022")
doc.recompute()

body18.Placement = App.Placement(Vector(0, 0, 87.6), App.Rotation(Vector(0, 0, 1), 0))
boolean16 = body23.newObject("PartDesign::Boolean", "Boolean015")
boolean16.Type = "Fuse"
boolean16.addObjects([body18])
body24 = doc.addObject("PartDesign::Body", "Body023")
doc.recompute()

body17.Placement = App.Placement(Vector(0, 0, 87.6), App.Rotation(Vector(0, 0, 1), 0))
boolean17 = body24.newObject("PartDesign::Boolean", "Boolean016")
boolean17.Type = "Fuse"
boolean17.addObjects([body17])

doc.recompute()
